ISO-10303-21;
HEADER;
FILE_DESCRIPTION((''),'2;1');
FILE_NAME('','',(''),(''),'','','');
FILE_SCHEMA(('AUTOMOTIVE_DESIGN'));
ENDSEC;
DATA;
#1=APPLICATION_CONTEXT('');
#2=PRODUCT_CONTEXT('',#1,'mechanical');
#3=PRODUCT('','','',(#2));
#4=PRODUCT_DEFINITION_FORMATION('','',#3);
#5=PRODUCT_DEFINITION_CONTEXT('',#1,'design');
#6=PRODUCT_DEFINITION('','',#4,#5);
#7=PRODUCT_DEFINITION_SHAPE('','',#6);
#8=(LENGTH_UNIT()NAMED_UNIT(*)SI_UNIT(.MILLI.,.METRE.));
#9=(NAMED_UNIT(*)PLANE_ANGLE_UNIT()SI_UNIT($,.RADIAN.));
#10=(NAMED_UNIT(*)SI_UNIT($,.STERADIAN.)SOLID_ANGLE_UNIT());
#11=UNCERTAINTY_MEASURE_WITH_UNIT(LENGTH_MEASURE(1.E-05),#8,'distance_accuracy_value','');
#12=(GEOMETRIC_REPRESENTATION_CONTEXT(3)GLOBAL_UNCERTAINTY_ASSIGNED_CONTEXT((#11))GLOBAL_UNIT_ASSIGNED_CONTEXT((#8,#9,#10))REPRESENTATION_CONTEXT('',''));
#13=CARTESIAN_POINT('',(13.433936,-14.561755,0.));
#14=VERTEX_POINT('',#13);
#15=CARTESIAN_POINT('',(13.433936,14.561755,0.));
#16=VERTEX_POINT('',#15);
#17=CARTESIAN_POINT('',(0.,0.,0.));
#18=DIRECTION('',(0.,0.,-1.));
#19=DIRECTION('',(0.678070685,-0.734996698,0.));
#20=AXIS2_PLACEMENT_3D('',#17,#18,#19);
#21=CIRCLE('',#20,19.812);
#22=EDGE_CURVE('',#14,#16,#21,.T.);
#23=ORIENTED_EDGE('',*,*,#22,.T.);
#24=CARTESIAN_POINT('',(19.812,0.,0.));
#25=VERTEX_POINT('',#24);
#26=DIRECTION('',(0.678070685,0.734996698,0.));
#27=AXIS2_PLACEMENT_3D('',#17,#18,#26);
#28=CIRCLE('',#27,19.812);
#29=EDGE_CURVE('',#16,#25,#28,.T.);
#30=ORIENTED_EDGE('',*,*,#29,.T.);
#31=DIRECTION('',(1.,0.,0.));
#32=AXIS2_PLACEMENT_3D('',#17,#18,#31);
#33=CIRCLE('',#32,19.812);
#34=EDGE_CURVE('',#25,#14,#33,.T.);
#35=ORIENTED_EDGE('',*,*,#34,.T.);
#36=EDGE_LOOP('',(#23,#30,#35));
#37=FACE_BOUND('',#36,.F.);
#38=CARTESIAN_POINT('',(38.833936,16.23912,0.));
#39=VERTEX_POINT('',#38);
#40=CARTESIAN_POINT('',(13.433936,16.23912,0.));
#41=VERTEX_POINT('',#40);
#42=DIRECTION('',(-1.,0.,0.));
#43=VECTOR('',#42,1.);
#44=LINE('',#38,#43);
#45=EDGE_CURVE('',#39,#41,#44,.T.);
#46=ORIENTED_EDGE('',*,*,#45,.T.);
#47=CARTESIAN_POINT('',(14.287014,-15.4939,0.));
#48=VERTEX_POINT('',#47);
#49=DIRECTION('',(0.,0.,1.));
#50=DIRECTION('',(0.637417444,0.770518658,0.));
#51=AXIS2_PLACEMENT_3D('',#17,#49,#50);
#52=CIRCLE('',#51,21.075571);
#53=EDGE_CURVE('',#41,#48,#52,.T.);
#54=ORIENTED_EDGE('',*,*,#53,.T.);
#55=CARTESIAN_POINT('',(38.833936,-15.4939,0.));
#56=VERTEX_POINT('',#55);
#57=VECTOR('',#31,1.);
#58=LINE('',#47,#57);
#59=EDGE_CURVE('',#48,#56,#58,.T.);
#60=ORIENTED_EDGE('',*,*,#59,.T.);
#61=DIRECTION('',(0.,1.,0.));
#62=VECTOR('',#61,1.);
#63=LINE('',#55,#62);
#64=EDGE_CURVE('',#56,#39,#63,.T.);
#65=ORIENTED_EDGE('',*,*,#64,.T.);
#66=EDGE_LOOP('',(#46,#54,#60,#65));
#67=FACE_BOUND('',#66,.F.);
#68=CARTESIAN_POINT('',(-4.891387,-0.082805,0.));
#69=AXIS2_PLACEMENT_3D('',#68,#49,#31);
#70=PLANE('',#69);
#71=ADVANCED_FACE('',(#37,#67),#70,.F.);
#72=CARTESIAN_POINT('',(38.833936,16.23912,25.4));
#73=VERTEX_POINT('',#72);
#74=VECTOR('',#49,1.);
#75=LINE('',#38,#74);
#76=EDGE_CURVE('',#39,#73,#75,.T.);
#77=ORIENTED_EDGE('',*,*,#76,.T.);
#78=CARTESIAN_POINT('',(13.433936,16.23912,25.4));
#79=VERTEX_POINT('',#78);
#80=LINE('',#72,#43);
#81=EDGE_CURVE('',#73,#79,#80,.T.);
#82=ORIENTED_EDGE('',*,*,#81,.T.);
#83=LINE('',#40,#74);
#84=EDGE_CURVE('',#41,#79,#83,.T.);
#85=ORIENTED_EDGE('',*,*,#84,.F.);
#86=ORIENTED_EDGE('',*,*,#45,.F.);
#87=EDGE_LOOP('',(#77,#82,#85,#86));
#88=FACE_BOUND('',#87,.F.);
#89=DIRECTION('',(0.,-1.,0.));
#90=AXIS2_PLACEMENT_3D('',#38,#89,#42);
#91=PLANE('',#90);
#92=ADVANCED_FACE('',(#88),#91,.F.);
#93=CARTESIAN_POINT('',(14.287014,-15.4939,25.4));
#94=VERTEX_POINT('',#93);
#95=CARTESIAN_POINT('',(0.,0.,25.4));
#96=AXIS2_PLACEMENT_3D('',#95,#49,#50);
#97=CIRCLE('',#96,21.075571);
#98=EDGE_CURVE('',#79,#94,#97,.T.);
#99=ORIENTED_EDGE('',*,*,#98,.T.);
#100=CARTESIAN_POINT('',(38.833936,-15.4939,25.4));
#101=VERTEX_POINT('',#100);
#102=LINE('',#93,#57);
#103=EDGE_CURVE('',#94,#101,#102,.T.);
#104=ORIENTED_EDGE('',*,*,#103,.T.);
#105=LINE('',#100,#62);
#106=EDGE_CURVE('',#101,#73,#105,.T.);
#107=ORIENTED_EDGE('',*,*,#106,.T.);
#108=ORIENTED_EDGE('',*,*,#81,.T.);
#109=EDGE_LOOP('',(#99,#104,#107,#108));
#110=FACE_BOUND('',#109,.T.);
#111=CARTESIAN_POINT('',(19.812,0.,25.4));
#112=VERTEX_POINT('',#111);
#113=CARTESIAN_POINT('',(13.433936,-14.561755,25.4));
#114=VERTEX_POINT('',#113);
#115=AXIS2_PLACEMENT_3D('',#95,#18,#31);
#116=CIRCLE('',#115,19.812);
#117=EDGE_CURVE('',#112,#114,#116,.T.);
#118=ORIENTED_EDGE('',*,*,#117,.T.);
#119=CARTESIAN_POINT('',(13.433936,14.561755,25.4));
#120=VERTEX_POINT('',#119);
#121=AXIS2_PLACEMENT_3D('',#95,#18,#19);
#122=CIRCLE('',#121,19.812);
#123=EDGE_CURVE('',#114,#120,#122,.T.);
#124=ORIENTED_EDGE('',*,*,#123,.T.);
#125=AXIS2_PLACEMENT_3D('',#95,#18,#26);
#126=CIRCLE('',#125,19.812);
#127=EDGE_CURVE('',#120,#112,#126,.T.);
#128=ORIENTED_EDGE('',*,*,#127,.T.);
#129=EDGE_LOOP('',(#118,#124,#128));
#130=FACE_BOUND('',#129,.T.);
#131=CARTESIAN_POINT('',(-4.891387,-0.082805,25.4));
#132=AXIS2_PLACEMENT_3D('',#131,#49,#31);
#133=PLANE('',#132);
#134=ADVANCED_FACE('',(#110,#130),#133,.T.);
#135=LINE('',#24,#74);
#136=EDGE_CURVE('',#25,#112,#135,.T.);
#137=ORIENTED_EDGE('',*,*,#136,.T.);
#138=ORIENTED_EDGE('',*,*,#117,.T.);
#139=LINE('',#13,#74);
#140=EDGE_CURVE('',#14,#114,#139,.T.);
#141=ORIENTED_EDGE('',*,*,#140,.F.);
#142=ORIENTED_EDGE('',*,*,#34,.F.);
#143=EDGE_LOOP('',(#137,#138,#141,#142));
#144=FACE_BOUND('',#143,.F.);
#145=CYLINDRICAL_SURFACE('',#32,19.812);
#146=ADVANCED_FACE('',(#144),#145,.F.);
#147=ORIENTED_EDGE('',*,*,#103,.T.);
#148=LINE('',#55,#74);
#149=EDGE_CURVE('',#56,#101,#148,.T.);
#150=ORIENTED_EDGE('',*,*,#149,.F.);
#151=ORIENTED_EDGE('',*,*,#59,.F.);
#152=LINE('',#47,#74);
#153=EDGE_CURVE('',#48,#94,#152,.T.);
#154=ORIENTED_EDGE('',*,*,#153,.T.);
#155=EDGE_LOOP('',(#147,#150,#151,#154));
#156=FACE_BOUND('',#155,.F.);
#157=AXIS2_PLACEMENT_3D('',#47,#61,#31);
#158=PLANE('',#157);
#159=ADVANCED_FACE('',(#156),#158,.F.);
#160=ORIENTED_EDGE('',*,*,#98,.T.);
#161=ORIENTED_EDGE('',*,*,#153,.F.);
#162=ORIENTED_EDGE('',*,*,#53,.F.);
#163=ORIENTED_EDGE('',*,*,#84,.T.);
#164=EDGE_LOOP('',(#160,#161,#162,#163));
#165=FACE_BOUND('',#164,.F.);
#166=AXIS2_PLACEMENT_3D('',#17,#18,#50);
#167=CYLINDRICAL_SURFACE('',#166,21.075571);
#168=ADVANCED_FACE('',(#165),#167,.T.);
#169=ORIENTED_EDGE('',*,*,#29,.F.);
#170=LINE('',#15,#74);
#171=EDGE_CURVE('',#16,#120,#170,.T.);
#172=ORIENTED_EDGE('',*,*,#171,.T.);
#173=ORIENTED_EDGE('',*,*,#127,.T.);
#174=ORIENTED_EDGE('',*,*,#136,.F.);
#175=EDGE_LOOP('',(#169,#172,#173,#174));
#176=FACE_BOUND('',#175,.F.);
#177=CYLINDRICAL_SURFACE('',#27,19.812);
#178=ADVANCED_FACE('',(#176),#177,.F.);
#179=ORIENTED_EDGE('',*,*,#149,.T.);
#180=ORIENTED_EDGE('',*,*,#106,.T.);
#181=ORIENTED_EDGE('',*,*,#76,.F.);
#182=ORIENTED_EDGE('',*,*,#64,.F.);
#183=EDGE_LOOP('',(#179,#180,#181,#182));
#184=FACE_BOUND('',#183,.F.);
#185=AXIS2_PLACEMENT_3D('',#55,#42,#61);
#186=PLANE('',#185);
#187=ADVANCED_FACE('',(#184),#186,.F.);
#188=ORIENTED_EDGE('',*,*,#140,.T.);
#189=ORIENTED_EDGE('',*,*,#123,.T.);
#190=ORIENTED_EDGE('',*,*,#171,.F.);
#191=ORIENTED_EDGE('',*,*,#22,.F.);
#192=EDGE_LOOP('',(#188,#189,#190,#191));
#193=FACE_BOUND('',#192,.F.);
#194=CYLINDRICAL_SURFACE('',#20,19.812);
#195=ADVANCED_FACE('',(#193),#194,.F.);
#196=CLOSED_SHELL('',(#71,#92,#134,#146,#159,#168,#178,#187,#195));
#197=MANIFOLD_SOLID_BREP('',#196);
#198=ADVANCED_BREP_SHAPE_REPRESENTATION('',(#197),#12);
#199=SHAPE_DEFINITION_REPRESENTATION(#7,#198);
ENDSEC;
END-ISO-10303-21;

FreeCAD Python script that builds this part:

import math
import FreeCAD as App
import Part
import Sketcher
from FreeCAD import Vector
Q = App.Units.Quantity

doc = App.newDocument("Part")
body = doc.addObject("PartDesign::Body", "Body")

sketch1 = body.newObject("Sketcher::SketchObject", "Sketch")
sketch1.AttachmentSupport = (doc.getObject("XY_Plane"), [""])
sketch1.MapMode = "FlatFace"
sketch1.addGeometry(Part.ArcOfCircle(Part.Circle(Vector(0, 0, 0), Vector(0, 0, 1), 21.075571), math.radians(50.400487), math.radians(312.67933)), False)
sketch1.addGeometry(Part.LineSegment(Vector(14.287014, -15.4939, 0), Vector(38.833936, -15.4939, 0)), False)
sketch1.addGeometry(Part.LineSegment(Vector(38.833936, -15.4939, 0), Vector(38.833936, 16.23912, 0)), False)
sketch1.addGeometry(Part.LineSegment(Vector(38.833936, 16.23912, 0), Vector(13.433936, 16.23912, 0)), False)
sketch1.addGeometry(Part.ArcOfCircle(Part.Circle(Vector(0, 0, 0), Vector(0, 0, 1), 19.812), math.radians(47.306937), math.radians(312.693063)), False)
sketch1.addGeometry(Part.ArcOfCircle(Part.Circle(Vector(0, 0, 0), Vector(0, 0, 1), 19.812), math.radians(0), math.radians(47.306937)), False)
sketch1.addGeometry(Part.ArcOfCircle(Part.Circle(Vector(0, 0, 0), Vector(0, 0, 1), 19.812), math.radians(-47.306937), math.radians(0)), False)
sketch1.addConstraint(Sketcher.Constraint("Coincident", 0, 2, 1, 1))
sketch1.addConstraint(Sketcher.Constraint("Coincident", 1, 2, 2, 1))
sketch1.addConstraint(Sketcher.Constraint("Coincident", 2, 2, 3, 1))
sketch1.addConstraint(Sketcher.Constraint("Coincident", 3, 2, 0, 1))
sketch1.addConstraint(Sketcher.Constraint("Tangent", 4, 1, 5, 2))
sketch1.addConstraint(Sketcher.Constraint("Tangent", 5, 1, 6, 2))
sketch1.addConstraint(Sketcher.Constraint("Tangent", 6, 1, 4, 2))
sketch1.addConstraint(Sketcher.Constraint("Horizontal", 1))
sketch1.addConstraint(Sketcher.Constraint("Vertical", 2))
sketch1.addConstraint(Sketcher.Constraint("Horizontal", 3))
sketch1.addConstraint(Sketcher.Constraint("Coincident", 0, 3, -1, 1))
sketch1.addConstraint(Sketcher.Constraint("Coincident", 4, 3, -1, 1))
sketch1.addConstraint(Sketcher.Constraint("PointOnObject", 5, 1, -1))
sketch1.addConstraint(Sketcher.Constraint("Vertical", 3, 2, 4, 1))
sketch1.addConstraint(Sketcher.Constraint("Vertical", 4, 1, 6, 1))
sketch1.addConstraint(Sketcher.Constraint("DistanceX", 3, 2, 3, 1, Q("1 in")))
sketch1.addConstraint(Sketcher.Constraint("Radius", 4, Q("0.78 in")))
sketch1.addConstraint(Sketcher.Constraint("Radius", 0, 21.075571))
sketch1.addConstraint(Sketcher.Constraint("DistanceY", 2, 1, 2, 2, 31.73302))
sketch1.addConstraint(Sketcher.Constraint("DistanceY", 0, 2, -1, 1, 15.4939))
pad1 = body.newObject("PartDesign::Pad", "Pad")
pad1.Profile = sketch1
pad1.Length = Q("1 in")

sketch2 = body.newObject("Sketcher::SketchObject", "Sketch001")
sketch2.AttachmentSupport = (doc.getObject("XY_Plane"), [""])
sketch2.MapMode = "FlatFace"
sketch2.addGeometry(Part.LineSegment(Vector(13.433936, -14.561755, 0), Vector(13.433936, 14.561755, 0)), False)
sketch2.addGeometry(Part.ArcOfCircle(Part.Circle(Vector(0, 0, 0), Vector(0, 0, 1), 19.812), math.radians(47.306937), math.radians(312.693063)), False)
sketch2.addConstraint(Sketcher.Constraint("Coincident", 0, 1, 1, 2))
sketch2.addConstraint(Sketcher.Constraint("Coincident", 1, 1, 0, 2))
sketch2.addConstraint(Sketcher.Constraint("Vertical", 0))
sketch2.addConstraint(Sketcher.Constraint("Coincident", 1, 3, -1, 1))
sketch2.addConstraint(Sketcher.Constraint("Radius", 1, Q("0.78 in")))
sketch2.addConstraint(Sketcher.Constraint("DistanceY", 0, 1, 0, 2, 29.123509))
pocket1 = body.newObject("PartDesign::Pocket", "Pocket")
pocket1.Profile = sketch2
pocket1.Length = Q("1 in")
pocket1.Reversed = True

doc.recompute()
